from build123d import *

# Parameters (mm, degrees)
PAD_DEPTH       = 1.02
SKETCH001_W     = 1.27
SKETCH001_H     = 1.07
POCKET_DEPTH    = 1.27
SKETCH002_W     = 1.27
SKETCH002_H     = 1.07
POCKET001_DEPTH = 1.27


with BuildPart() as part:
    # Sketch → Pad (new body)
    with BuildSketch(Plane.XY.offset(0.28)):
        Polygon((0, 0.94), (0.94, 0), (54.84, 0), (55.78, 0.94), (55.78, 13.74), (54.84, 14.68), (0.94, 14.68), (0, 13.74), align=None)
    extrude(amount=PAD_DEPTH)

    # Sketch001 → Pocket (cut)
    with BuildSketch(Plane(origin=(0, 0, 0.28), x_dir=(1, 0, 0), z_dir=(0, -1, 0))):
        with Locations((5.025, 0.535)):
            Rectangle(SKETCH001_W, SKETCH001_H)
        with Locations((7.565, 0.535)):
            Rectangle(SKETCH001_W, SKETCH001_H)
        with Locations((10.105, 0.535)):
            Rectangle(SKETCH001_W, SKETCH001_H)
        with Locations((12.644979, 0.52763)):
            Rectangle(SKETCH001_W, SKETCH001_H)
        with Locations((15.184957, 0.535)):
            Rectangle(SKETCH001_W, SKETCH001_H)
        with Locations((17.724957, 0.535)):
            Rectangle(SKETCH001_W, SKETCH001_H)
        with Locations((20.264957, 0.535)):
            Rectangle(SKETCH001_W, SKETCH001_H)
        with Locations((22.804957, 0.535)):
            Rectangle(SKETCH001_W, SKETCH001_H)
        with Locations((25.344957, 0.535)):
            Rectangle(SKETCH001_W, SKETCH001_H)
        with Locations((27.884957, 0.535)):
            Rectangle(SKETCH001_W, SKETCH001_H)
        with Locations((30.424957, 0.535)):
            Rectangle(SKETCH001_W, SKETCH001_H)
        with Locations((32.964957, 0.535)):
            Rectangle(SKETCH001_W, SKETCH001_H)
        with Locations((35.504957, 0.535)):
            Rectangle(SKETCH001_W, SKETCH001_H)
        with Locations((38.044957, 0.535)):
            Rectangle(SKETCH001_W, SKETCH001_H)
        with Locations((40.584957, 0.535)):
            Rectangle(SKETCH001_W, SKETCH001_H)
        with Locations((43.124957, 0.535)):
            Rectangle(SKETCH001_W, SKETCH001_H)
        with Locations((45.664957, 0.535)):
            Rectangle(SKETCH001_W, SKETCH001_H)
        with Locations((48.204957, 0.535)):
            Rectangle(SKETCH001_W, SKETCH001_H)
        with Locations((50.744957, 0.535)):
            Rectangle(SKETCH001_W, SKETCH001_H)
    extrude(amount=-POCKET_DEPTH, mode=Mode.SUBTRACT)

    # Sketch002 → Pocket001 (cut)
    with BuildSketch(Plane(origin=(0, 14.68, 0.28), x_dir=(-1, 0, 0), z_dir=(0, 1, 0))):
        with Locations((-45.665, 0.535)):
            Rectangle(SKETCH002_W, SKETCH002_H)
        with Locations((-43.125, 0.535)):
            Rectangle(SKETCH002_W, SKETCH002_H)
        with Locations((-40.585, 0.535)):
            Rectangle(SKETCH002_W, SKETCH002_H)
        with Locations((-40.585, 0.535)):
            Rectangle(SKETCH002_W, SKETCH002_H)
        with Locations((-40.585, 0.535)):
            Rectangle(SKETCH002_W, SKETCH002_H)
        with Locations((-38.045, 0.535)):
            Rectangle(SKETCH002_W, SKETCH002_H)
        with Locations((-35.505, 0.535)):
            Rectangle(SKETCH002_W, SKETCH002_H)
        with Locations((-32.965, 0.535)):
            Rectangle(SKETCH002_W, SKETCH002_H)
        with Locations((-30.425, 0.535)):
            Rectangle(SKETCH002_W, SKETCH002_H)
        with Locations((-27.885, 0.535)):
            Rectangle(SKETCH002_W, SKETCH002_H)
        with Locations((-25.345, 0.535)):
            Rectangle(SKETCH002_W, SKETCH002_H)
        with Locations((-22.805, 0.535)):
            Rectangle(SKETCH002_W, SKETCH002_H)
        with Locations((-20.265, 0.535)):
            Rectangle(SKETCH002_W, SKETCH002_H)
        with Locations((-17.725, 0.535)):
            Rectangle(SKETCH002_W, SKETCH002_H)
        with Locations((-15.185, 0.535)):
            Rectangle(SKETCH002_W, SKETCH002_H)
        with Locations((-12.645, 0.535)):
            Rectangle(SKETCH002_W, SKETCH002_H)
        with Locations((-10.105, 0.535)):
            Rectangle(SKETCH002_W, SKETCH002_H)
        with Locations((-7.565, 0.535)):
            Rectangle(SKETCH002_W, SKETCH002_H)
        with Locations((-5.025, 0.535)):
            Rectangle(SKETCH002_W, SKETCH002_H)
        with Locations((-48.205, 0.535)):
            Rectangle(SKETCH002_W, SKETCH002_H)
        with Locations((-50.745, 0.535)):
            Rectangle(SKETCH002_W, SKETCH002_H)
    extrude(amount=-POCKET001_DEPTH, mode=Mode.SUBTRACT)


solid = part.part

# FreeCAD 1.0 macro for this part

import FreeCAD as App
import Part
import Sketcher
from FreeCAD import Vector


def add_polygon(sketch, points):
    """Adds a closed chain of lines whose ends are joined by coincident constraints."""
    first, n = sketch.GeometryCount, len(points)
    for a, b in zip(points, points[1:] + points[:1]):
        sketch.addGeometry(Part.LineSegment(App.Vector(*a, 0), App.Vector(*b, 0)), False)
    for i in range(n):
        sketch.addConstraint(Sketcher.Constraint("Coincident", first + i, 2, first + (i + 1) % n, 1))

doc = App.newDocument("Part")
params = doc.addObject("Spreadsheet::Sheet", "Params")
for row, (alias, value) in enumerate([
    ("sketch1_width", "53.9 mm"),
    ("sketch1_height", "12.8 mm"),
    ("pad1_length", "1.02 mm"),
    ("sketch2_width", "1.27 mm"),
    ("sketch2_height", "1.07 mm"),
    ("pocket1_length", "1.27 mm"),
    ("sketch3_width", "1.27 mm"),
    ("sketch3_height", "1.07 mm"),
    ("pocket2_length", "1.27 mm"),
], start=1):
    params.set(f"A{row}", alias)
    params.set(f"B{row}", "=" + value)
    params.setAlias(f"B{row}", alias)

body = doc.addObject("PartDesign::Body", "Body")

# Sketch on XY plane
sketch1 = body.newObject("Sketcher::SketchObject", "Sketch")
sketch1.AttachmentSupport = (doc.getObject("XY_Plane"), [""])
sketch1.MapMode = "FlatFace"
sketch1.AttachmentOffset = App.Placement(Vector(0, 0, 0.28), App.Rotation())
add_polygon(sketch1, [(0, 0.9), (0.9, 0), (54.8, 0), (55.8, 0.9), (55.8, 13.7), (54.8, 14.7), (0.9, 14.7), (0, 13.7)])  # lines 0-7
sketch1.addConstraint(Sketcher.Constraint("Horizontal", 1))
sketch1.addConstraint(Sketcher.Constraint("Vertical", 3))
sketch1.addConstraint(Sketcher.Constraint("Horizontal", 5))
sketch1.addConstraint(Sketcher.Constraint("Vertical", 7))
sketch1.addConstraint(Sketcher.Constraint("PointOnObject", 0, 2, -1))
sketch1.addConstraint(Sketcher.Constraint("PointOnObject", 6, 2, -2))
sketch1.addConstraint(Sketcher.Constraint("Perpendicular", 0, 2))
sketch1.addConstraint(Sketcher.Constraint("Perpendicular", 2, 4))
sketch1.addConstraint(Sketcher.Constraint("Perpendicular", 4, 6))
sketch1.addConstraint(Sketcher.Constraint("Horizontal", 3, 2, 6, 2))
sketch1.addConstraint(Sketcher.Constraint("Horizontal", 2, 2, 7, 2))
sketch1.addConstraint(Sketcher.Constraint("Vertical", 1, 2, 4, 2))
sketch1.addConstraint(Sketcher.Constraint("Vertical", 0, 2, 5, 2))
sketch1.addConstraint(Sketcher.Constraint("DistanceX", 1, 1, 1, 2, 53.9))
sketch1.addConstraint(Sketcher.Constraint("DistanceY", 3, 1, 3, 2, 12.8))
sketch1.addConstraint(Sketcher.Constraint("DistanceX", -1, 1, 0, 2, 0.94))
sketch1.setExpression("Constraints[21]", "Params.sketch1_width")
sketch1.setExpression("Constraints[22]", "Params.sketch1_height")
pad1 = body.newObject("PartDesign::Pad", "Pad")
pad1.Profile = sketch1
pad1.setExpression("Length", "Params.pad1_length")

# Sketch on XZ plane
sketch2 = body.newObject("Sketcher::SketchObject", "Sketch001")
sketch2.AttachmentSupport = (doc.getObject("XZ_Plane"), [""])
sketch2.MapMode = "FlatFace"
add_polygon(sketch2, [(4.4, 1.4), (4.4, 0.3), (5.7, 0.3), (5.7, 1.4)])  # lines 0-3
add_polygon(sketch2, [(6.9, 1.4), (6.9, 0.3), (8.2, 0.3), (8.2, 1.4)])  # lines 4-7
add_polygon(sketch2, [(9.5, 1.4), (9.5, 0.3), (10.7, 0.3), (10.7, 1.4)])  # lines 8-11
add_polygon(sketch2, [(12, 1.3), (12, 0.3), (13.3, 0.3), (13.3, 1.3)])  # lines 12-15
add_polygon(sketch2, [(14.5, 1.4), (14.5, 0.3), (15.8, 0.3), (15.8, 1.4)])  # lines 16-19
add_polygon(sketch2, [(17.1, 1.4), (17.1, 0.3), (18.4, 0.3), (18.4, 1.4)])  # lines 20-23
add_polygon(sketch2, [(19.6, 1.4), (19.6, 0.3), (20.9, 0.3), (20.9, 1.4)])  # lines 24-27
add_polygon(sketch2, [(22.2, 1.4), (22.2, 0.3), (23.4, 0.3), (23.4, 1.4)])  # lines 28-31
add_polygon(sketch2, [(24.7, 1.4), (24.7, 0.3), (26, 0.3), (26, 1.4)])  # lines 32-35
add_polygon(sketch2, [(27.2, 1.4), (27.2, 0.3), (28.5, 0.3), (28.5, 1.4)])  # lines 36-39
add_polygon(sketch2, [(29.8, 1.4), (29.8, 0.3), (31.1, 0.3), (31.1, 1.4)])  # lines 40-43
add_polygon(sketch2, [(32.3, 1.4), (32.3, 0.3), (33.6, 0.3), (33.6, 1.4)])  # lines 44-47
add_polygon(sketch2, [(34.9, 1.4), (34.9, 0.3), (36.1, 0.3), (36.1, 1.4)])  # lines 48-51
add_polygon(sketch2, [(37.4, 1.4), (37.4, 0.3), (38.7, 0.3), (38.7, 1.4)])  # lines 52-55
add_polygon(sketch2, [(39.9, 1.4), (39.9, 0.3), (41.2, 0.3), (41.2, 1.4)])  # lines 56-59
add_polygon(sketch2, [(42.5, 1.4), (42.5, 0.3), (43.8, 0.3), (43.8, 1.4)])  # lines 60-63
add_polygon(sketch2, [(45, 1.4), (45, 0.3), (46.3, 0.3), (46.3, 1.4)])  # lines 64-67
add_polygon(sketch2, [(47.6, 1.4), (47.6, 0.3), (48.8, 0.3), (48.8, 1.4)])  # lines 68-71
add_polygon(sketch2, [(50.1, 1.4), (50.1, 0.3), (51.4, 0.3), (51.4, 1.4)])  # lines 72-75
sketch2.addConstraint(Sketcher.Constraint("Vertical", 0))
sketch2.addConstraint(Sketcher.Constraint("Horizontal", 1))
sketch2.addConstraint(Sketcher.Constraint("Vertical", 2))
sketch2.addConstraint(Sketcher.Constraint("Horizontal", 3))
sketch2.addConstraint(Sketcher.Constraint("Vertical", 4))
sketch2.addConstraint(Sketcher.Constraint("Horizontal", 5))
sketch2.addConstraint(Sketcher.Constraint("Vertical", 6))
sketch2.addConstraint(Sketcher.Constraint("Horizontal", 7))
sketch2.addConstraint(Sketcher.Constraint("Vertical", 8))
sketch2.addConstraint(Sketcher.Constraint("Horizontal", 9))
sketch2.addConstraint(Sketcher.Constraint("Vertical", 10))
sketch2.addConstraint(Sketcher.Constraint("Horizontal", 11))
sketch2.addConstraint(Sketcher.Constraint("Vertical", 12))
sketch2.addConstraint(Sketcher.Constraint("Horizontal", 13))
sketch2.addConstraint(Sketcher.Constraint("Vertical", 14))
sketch2.addConstraint(Sketcher.Constraint("Horizontal", 15))
sketch2.addConstraint(Sketcher.Constraint("Vertical", 16))
sketch2.addConstraint(Sketcher.Constraint("Horizontal", 17))
sketch2.addConstraint(Sketcher.Constraint("Vertical", 18))
sketch2.addConstraint(Sketcher.Constraint("Horizontal", 19))
sketch2.addConstraint(Sketcher.Constraint("Vertical", 20))
sketch2.addConstraint(Sketcher.Constraint("Horizontal", 21))
sketch2.addConstraint(Sketcher.Constraint("Vertical", 22))
sketch2.addConstraint(Sketcher.Constraint("Horizontal", 23))
sketch2.addConstraint(Sketcher.Constraint("Vertical", 24))
sketch2.addConstraint(Sketcher.Constraint("Horizontal", 25))
sketch2.addConstraint(Sketcher.Constraint("Vertical", 26))
sketch2.addConstraint(Sketcher.Constraint("Horizontal", 27))
sketch2.addConstraint(Sketcher.Constraint("Vertical", 28))
sketch2.addConstraint(Sketcher.Constraint("Horizontal", 29))
sketch2.addConstraint(Sketcher.Constraint("Vertical", 30))
sketch2.addConstraint(Sketcher.Constraint("Horizontal", 31))
sketch2.addConstraint(Sketcher.Constraint("Vertical", 32))
sketch2.addConstraint(Sketcher.Constraint("Horizontal", 33))
sketch2.addConstraint(Sketcher.Constraint("Vertical", 34))
sketch2.addConstraint(Sketcher.Constraint("Horizontal", 35))
sketch2.addConstraint(Sketcher.Constraint("Vertical", 36))
sketch2.addConstraint(Sketcher.Constraint("Horizontal", 37))
sketch2.addConstraint(Sketcher.Constraint("Vertical", 38))
sketch2.addConstraint(Sketcher.Constraint("Horizontal", 39))
sketch2.addConstraint(Sketcher.Constraint("Vertical", 40))
sketch2.addConstraint(Sketcher.Constraint("Horizontal", 41))
sketch2.addConstraint(Sketcher.Constraint("Vertical", 42))
sketch2.addConstraint(Sketcher.Constraint("Horizontal", 43))
sketch2.addConstraint(Sketcher.Constraint("Vertical", 44))
sketch2.addConstraint(Sketcher.Constraint("Horizontal", 45))
sketch2.addConstraint(Sketcher.Constraint("Vertical", 46))
sketch2.addConstraint(Sketcher.Constraint("Horizontal", 47))
sketch2.addConstraint(Sketcher.Constraint("Vertical", 48))
sketch2.addConstraint(Sketcher.Constraint("Horizontal", 49))
sketch2.addConstraint(Sketcher.Constraint("Vertical", 50))
sketch2.addConstraint(Sketcher.Constraint("Horizontal", 51))
sketch2.addConstraint(Sketcher.Constraint("Vertical", 52))
sketch2.addConstraint(Sketcher.Constraint("Horizontal", 53))
sketch2.addConstraint(Sketcher.Constraint("Vertical", 54))
sketch2.addConstraint(Sketcher.Constraint("Horizontal", 55))
sketch2.addConstraint(Sketcher.Constraint("Vertical", 56))
sketch2.addConstraint(Sketcher.Constraint("Horizontal", 57))
sketch2.addConstraint(Sketcher.Constraint("Vertical", 58))
sketch2.addConstraint(Sketcher.Constraint("Horizontal", 59))
sketch2.addConstraint(Sketcher.Constraint("Vertical", 60))
sketch2.addConstraint(Sketcher.Constraint("Horizontal", 61))
sketch2.addConstraint(Sketcher.Constraint("Vertical", 62))
sketch2.addConstraint(Sketcher.Constraint("Horizontal", 63))
sketch2.addConstraint(Sketcher.Constraint("Vertical", 64))
sketch2.addConstraint(Sketcher.Constraint("Horizontal", 65))
sketch2.addConstraint(Sketcher.Constraint("Vertical", 66))
sketch2.addConstraint(Sketcher.Constraint("Horizontal", 67))
sketch2.addConstraint(Sketcher.Constraint("Vertical", 68))
sketch2.addConstraint(Sketcher.Constraint("Horizontal", 69))
sketch2.addConstraint(Sketcher.Constraint("Vertical", 70))
sketch2.addConstraint(Sketcher.Constraint("Horizontal", 71))
sketch2.addConstraint(Sketcher.Constraint("Vertical", 72))
sketch2.addConstraint(Sketcher.Constraint("Horizontal", 73))
sketch2.addConstraint(Sketcher.Constraint("Vertical", 74))
sketch2.addConstraint(Sketcher.Constraint("Horizontal", 75))
sketch2.addConstraint(Sketcher.Constraint("Horizontal", 1, 2, 4, 2))
sketch2.addConstraint(Sketcher.Constraint("Horizontal", 3, 2, 6, 2))
sketch2.addConstraint(Sketcher.Constraint("Horizontal", 5, 2, 8, 2))
sketch2.addConstraint(Sketcher.Constraint("Horizontal", 7, 2, 10, 2))
sketch2.addConstraint(Sketcher.Constraint("Horizontal", 9, 2, 16, 2))
sketch2.addConstraint(Sketcher.Constraint("Horizontal", 11, 2, 18, 2))
sketch2.addConstraint(Sketcher.Constraint("Horizontal", 17, 2, 20, 2))
sketch2.addConstraint(Sketcher.Constraint("Horizontal", 19, 2, 22, 2))
sketch2.addConstraint(Sketcher.Constraint("Horizontal", 21, 2, 24, 2))
sketch2.addConstraint(Sketcher.Constraint("Horizontal", 23, 2, 26, 2))
sketch2.addConstraint(Sketcher.Constraint("Horizontal", 25, 2, 28, 2))
sketch2.addConstraint(Sketcher.Constraint("Horizontal", 27, 2, 30, 2))
sketch2.addConstraint(Sketcher.Constraint("Horizontal", 29, 2, 32, 2))
sketch2.addConstraint(Sketcher.Constraint("Horizontal", 31, 2, 34, 2))
sketch2.addConstraint(Sketcher.Constraint("Horizontal", 33, 2, 36, 2))
sketch2.addConstraint(Sketcher.Constraint("Horizontal", 35, 2, 38, 2))
sketch2.addConstraint(Sketcher.Constraint("Horizontal", 37, 2, 40, 2))
sketch2.addConstraint(Sketcher.Constraint("Horizontal", 39, 2, 42, 2))
sketch2.addConstraint(Sketcher.Constraint("Horizontal", 41, 2, 44, 2))
sketch2.addConstraint(Sketcher.Constraint("Horizontal", 43, 2, 46, 2))
sketch2.addConstraint(Sketcher.Constraint("Horizontal", 45, 2, 48, 2))
sketch2.addConstraint(Sketcher.Constraint("Horizontal", 47, 2, 50, 2))
sketch2.addConstraint(Sketcher.Constraint("Horizontal", 49, 2, 52, 2))
sketch2.addConstraint(Sketcher.Constraint("Horizontal", 51, 2, 54, 2))
sketch2.addConstraint(Sketcher.Constraint("Horizontal", 53, 2, 56, 2))
sketch2.addConstraint(Sketcher.Constraint("Horizontal", 55, 2, 58, 2))
sketch2.addConstraint(Sketcher.Constraint("Horizontal", 57, 2, 60, 2))
sketch2.addConstraint(Sketcher.Constraint("Horizontal", 59, 2, 62, 2))
sketch2.addConstraint(Sketcher.Constraint("Horizontal", 61, 2, 64, 2))
sketch2.addConstraint(Sketcher.Constraint("Horizontal", 63, 2, 66, 2))
sketch2.addConstraint(Sketcher.Constraint("Horizontal", 65, 2, 68, 2))
sketch2.addConstraint(Sketcher.Constraint("Horizontal", 67, 2, 70, 2))
sketch2.addConstraint(Sketcher.Constraint("Horizontal", 69, 2, 72, 2))
sketch2.addConstraint(Sketcher.Constraint("Horizontal", 71, 2, 74, 2))
sketch2.addConstraint(Sketcher.Constraint("Equal", 3, 5))
sketch2.addConstraint(Sketcher.Constraint("Equal", 7, 9))
sketch2.addConstraint(Sketcher.Constraint("Equal", 11, 13))
sketch2.addConstraint(Sketcher.Constraint("Equal", 15, 17))
sketch2.addConstraint(Sketcher.Constraint("Equal", 19, 21))
sketch2.addConstraint(Sketcher.Constraint("Equal", 23, 25))
sketch2.addConstraint(Sketcher.Constraint("Equal", 27, 29))
sketch2.addConstraint(Sketcher.Constraint("Equal", 31, 33))
sketch2.addConstraint(Sketcher.Constraint("Equal", 35, 37))
sketch2.addConstraint(Sketcher.Constraint("Equal", 39, 41))
sketch2.addConstraint(Sketcher.Constraint("Equal", 43, 45))
sketch2.addConstraint(Sketcher.Constraint("Equal", 47, 49))
sketch2.addConstraint(Sketcher.Constraint("Equal", 51, 53))
sketch2.addConstraint(Sketcher.Constraint("Equal", 55, 57))
sketch2.addConstraint(Sketcher.Constraint("Equal", 59, 61))
sketch2.addConstraint(Sketcher.Constraint("Equal", 63, 65))
sketch2.addConstraint(Sketcher.Constraint("Equal", 67, 69))
sketch2.addConstraint(Sketcher.Constraint("Equal", 71, 73))
sketch2.addConstraint(Sketcher.Constraint("Equal", 10, 12))
sketch2.addConstraint(Sketcher.Constraint("DistanceX", 1, 1, 1, 2, 1.27))
sketch2.addConstraint(Sketcher.Constraint("DistanceY", 0, 2, 0, 1, 1.07))
sketch2.addConstraint(Sketcher.Constraint("DistanceX", -1, 1, 5, 2, 8.2))
sketch2.addConstraint(Sketcher.Constraint("DistanceX", -1, 1, 0, 2, 4.39))
sketch2.addConstraint(Sketcher.Constraint("DistanceY", -1, 1, 0, 2, 0.28))
sketch2.addConstraint(Sketcher.Constraint("DistanceX", -1, 1, 8, 2, 9.47))
sketch2.addConstraint(Sketcher.Constraint("DistanceX", -1, 1, 12, 2, 12.009979))
sketch2.addConstraint(Sketcher.Constraint("DistanceY", -1, 1, 12, 2, 0.27263))
sketch2.addConstraint(Sketcher.Constraint("DistanceX", -1, 1, 16, 2, 14.549957))
sketch2.addConstraint(Sketcher.Constraint("DistanceX", -1, 1, 20, 2, 17.089957))
sketch2.addConstraint(Sketcher.Constraint("DistanceX", -1, 1, 24, 2, 19.629957))
sketch2.addConstraint(Sketcher.Constraint("DistanceX", -1, 1, 28, 2, 22.169957))
sketch2.addConstraint(Sketcher.Constraint("DistanceX", -1, 1, 32, 2, 24.709957))
sketch2.addConstraint(Sketcher.Constraint("DistanceX", -1, 1, 36, 2, 27.249957))
sketch2.addConstraint(Sketcher.Constraint("DistanceX", -1, 1, 40, 2, 29.789957))
sketch2.addConstraint(Sketcher.Constraint("DistanceX", -1, 1, 44, 2, 32.329957))
sketch2.addConstraint(Sketcher.Constraint("DistanceX", -1, 1, 48, 2, 34.869957))
sketch2.addConstraint(Sketcher.Constraint("DistanceX", -1, 1, 52, 2, 37.409957))
sketch2.addConstraint(Sketcher.Constraint("DistanceX", -1, 1, 56, 2, 39.949957))
sketch2.addConstraint(Sketcher.Constraint("DistanceX", -1, 1, 60, 2, 42.489957))
sketch2.addConstraint(Sketcher.Constraint("DistanceX", -1, 1, 64, 2, 45.029957))
sketch2.addConstraint(Sketcher.Constraint("DistanceX", -1, 1, 68, 2, 47.569957))
sketch2.addConstraint(Sketcher.Constraint("DistanceX", -1, 1, 72, 2, 50.109957))
sketch2.setExpression("Constraints[205]", "Params.sketch2_width")
sketch2.setExpression("Constraints[206]", "Params.sketch2_height")
pocket1 = body.newObject("PartDesign::Pocket", "Pocket")
pocket1.Profile = sketch2
pocket1.setExpression("Length", "Params.pocket1_length")

# Sketch on XZ plane
sketch3 = body.newObject("Sketcher::SketchObject", "Sketch002")
sketch3.AttachmentSupport = (doc.getObject("XZ_Plane"), [""])
sketch3.MapMode = "FlatFace"
sketch3.AttachmentOffset = App.Placement(Vector(0, 0, -14.68), App.Rotation())
add_polygon(sketch3, [(46.3, 1.4), (46.3, 0.3), (45, 0.3), (45, 1.4)])  # lines 0-3
add_polygon(sketch3, [(43.8, 1.4), (43.8, 0.3), (42.5, 0.3), (42.5, 1.4)])  # lines 4-7
add_polygon(sketch3, [(41.2, 1.4), (41.2, 0.3), (40, 0.3), (40, 1.4)])  # lines 8-11
add_polygon(sketch3, [(38.7, 1.4), (38.7, 0.3), (37.4, 0.3), (37.4, 1.4)])  # lines 12-15
add_polygon(sketch3, [(36.1, 1.4), (36.1, 0.3), (34.9, 0.3), (34.9, 1.4)])  # lines 16-19
add_polygon(sketch3, [(33.6, 1.4), (33.6, 0.3), (32.3, 0.3), (32.3, 1.4)])  # lines 20-23
add_polygon(sketch3, [(31.1, 1.4), (31.1, 0.3), (29.8, 0.3), (29.8, 1.4)])  # lines 24-27
add_polygon(sketch3, [(28.5, 1.4), (28.5, 0.3), (27.2, 0.3), (27.2, 1.4)])  # lines 28-31
add_polygon(sketch3, [(26, 1.4), (26, 0.3), (24.7, 0.3), (24.7, 1.4)])  # lines 32-35
add_polygon(sketch3, [(23.4, 1.4), (23.4, 0.3), (22.2, 0.3), (22.2, 1.4)])  # lines 36-39
add_polygon(sketch3, [(20.9, 1.4), (20.9, 0.3), (19.6, 0.3), (19.6, 1.4)])  # lines 40-43
add_polygon(sketch3, [(18.4, 1.4), (18.4, 0.3), (17.1, 0.3), (17.1, 1.4)])  # lines 44-47
add_polygon(sketch3, [(15.8, 1.4), (15.8, 0.3), (14.6, 0.3), (14.6, 1.4)])  # lines 48-51
add_polygon(sketch3, [(13.3, 1.4), (13.3, 0.3), (12, 0.3), (12, 1.4)])  # lines 52-55
add_polygon(sketch3, [(10.7, 1.4), (10.7, 0.3), (9.5, 0.3), (9.5, 1.4)])  # lines 56-59
add_polygon(sketch3, [(8.2, 1.4), (8.2, 0.3), (6.9, 0.3), (6.9, 1.4)])  # lines 60-63
add_polygon(sketch3, [(5.7, 1.4), (5.7, 0.3), (4.4, 0.3), (4.4, 1.4)])  # lines 64-67
add_polygon(sketch3, [(48.8, 1.4), (48.8, 0.3), (47.6, 0.3), (47.6, 1.4)])  # lines 68-71
add_polygon(sketch3, [(51.4, 1.4), (51.4, 0.3), (50.1, 0.3), (50.1, 1.4)])  # lines 72-75
sketch3.addConstraint(Sketcher.Constraint("Vertical", 0))
sketch3.addConstraint(Sketcher.Constraint("Horizontal", 1))
sketch3.addConstraint(Sketcher.Constraint("Vertical", 2))
sketch3.addConstraint(Sketcher.Constraint("Horizontal", 3))
sketch3.addConstraint(Sketcher.Constraint("Vertical", 4))
sketch3.addConstraint(Sketcher.Constraint("Horizontal", 5))
sketch3.addConstraint(Sketcher.Constraint("Vertical", 6))
sketch3.addConstraint(Sketcher.Constraint("Horizontal", 7))
sketch3.addConstraint(Sketcher.Constraint("Vertical", 8))
sketch3.addConstraint(Sketcher.Constraint("Horizontal", 9))
sketch3.addConstraint(Sketcher.Constraint("Vertical", 10))
sketch3.addConstraint(Sketcher.Constraint("Horizontal", 11))
sketch3.addConstraint(Sketcher.Constraint("Vertical", 12))
sketch3.addConstraint(Sketcher.Constraint("Horizontal", 13))
sketch3.addConstraint(Sketcher.Constraint("Vertical", 14))
sketch3.addConstraint(Sketcher.Constraint("Horizontal", 15))
sketch3.addConstraint(Sketcher.Constraint("Vertical", 16))
sketch3.addConstraint(Sketcher.Constraint("Horizontal", 17))
sketch3.addConstraint(Sketcher.Constraint("Vertical", 18))
sketch3.addConstraint(Sketcher.Constraint("Horizontal", 19))
sketch3.addConstraint(Sketcher.Constraint("Vertical", 20))
sketch3.addConstraint(Sketcher.Constraint("Horizontal", 21))
sketch3.addConstraint(Sketcher.Constraint("Vertical", 22))
sketch3.addConstraint(Sketcher.Constraint("Horizontal", 23))
sketch3.addConstraint(Sketcher.Constraint("Vertical", 24))
sketch3.addConstraint(Sketcher.Constraint("Horizontal", 25))
sketch3.addConstraint(Sketcher.Constraint("Vertical", 26))
sketch3.addConstraint(Sketcher.Constraint("Horizontal", 27))
sketch3.addConstraint(Sketcher.Constraint("Vertical", 28))
sketch3.addConstraint(Sketcher.Constraint("Horizontal", 29))
sketch3.addConstraint(Sketcher.Constraint("Vertical", 30))
sketch3.addConstraint(Sketcher.Constraint("Horizontal", 31))
sketch3.addConstraint(Sketcher.Constraint("Vertical", 32))
sketch3.addConstraint(Sketcher.Constraint("Horizontal", 33))
sketch3.addConstraint(Sketcher.Constraint("Vertical", 34))
sketch3.addConstraint(Sketcher.Constraint("Horizontal", 35))
sketch3.addConstraint(Sketcher.Constraint("Vertical", 36))
sketch3.addConstraint(Sketcher.Constraint("Horizontal", 37))
sketch3.addConstraint(Sketcher.Constraint("Vertical", 38))
sketch3.addConstraint(Sketcher.Constraint("Horizontal", 39))
sketch3.addConstraint(Sketcher.Constraint("Vertical", 40))
sketch3.addConstraint(Sketcher.Constraint("Horizontal", 41))
sketch3.addConstraint(Sketcher.Constraint("Vertical", 42))
sketch3.addConstraint(Sketcher.Constraint("Horizontal", 43))
sketch3.addConstraint(Sketcher.Constraint("Vertical", 44))
sketch3.addConstraint(Sketcher.Constraint("Horizontal", 45))
sketch3.addConstraint(Sketcher.Constraint("Vertical", 46))
sketch3.addConstraint(Sketcher.Constraint("Horizontal", 47))
sketch3.addConstraint(Sketcher.Constraint("Vertical", 48))
sketch3.addConstraint(Sketcher.Constraint("Horizontal", 49))
sketch3.addConstraint(Sketcher.Constraint("Vertical", 50))
sketch3.addConstraint(Sketcher.Constraint("Horizontal", 51))
sketch3.addConstraint(Sketcher.Constraint("Vertical", 52))
sketch3.addConstraint(Sketcher.Constraint("Horizontal", 53))
sketch3.addConstraint(Sketcher.Constraint("Vertical", 54))
sketch3.addConstraint(Sketcher.Constraint("Horizontal", 55))
sketch3.addConstraint(Sketcher.Constraint("Vertical", 56))
sketch3.addConstraint(Sketcher.Constraint("Horizontal", 57))
sketch3.addConstraint(Sketcher.Constraint("Vertical", 58))
sketch3.addConstraint(Sketcher.Constraint("Horizontal", 59))
sketch3.addConstraint(Sketcher.Constraint("Vertical", 60))
sketch3.addConstraint(Sketcher.Constraint("Horizontal", 61))
sketch3.addConstraint(Sketcher.Constraint("Vertical", 62))
sketch3.addConstraint(Sketcher.Constraint("Horizontal", 63))
sketch3.addConstraint(Sketcher.Constraint("Vertical", 64))
sketch3.addConstraint(Sketcher.Constraint("Horizontal", 65))
sketch3.addConstraint(Sketcher.Constraint("Vertical", 66))
sketch3.addConstraint(Sketcher.Constraint("Horizontal", 67))
sketch3.addConstraint(Sketcher.Constraint("Vertical", 68))
sketch3.addConstraint(Sketcher.Constraint("Horizontal", 69))
sketch3.addConstraint(Sketcher.Constraint("Vertical", 70))
sketch3.addConstraint(Sketcher.Constraint("Horizontal", 71))
sketch3.addConstraint(Sketcher.Constraint("Vertical", 72))
sketch3.addConstraint(Sketcher.Constraint("Horizontal", 73))
sketch3.addConstraint(Sketcher.Constraint("Vertical", 74))
sketch3.addConstraint(Sketcher.Constraint("Horizontal", 75))
sketch3.addConstraint(Sketcher.Constraint("Horizontal", 1, 2, 4, 2))
sketch3.addConstraint(Sketcher.Constraint("Horizontal", 3, 2, 6, 2))
sketch3.addConstraint(Sketcher.Constraint("Horizontal", 5, 2, 8, 2))
sketch3.addConstraint(Sketcher.Constraint("Horizontal", 7, 2, 10, 2))
sketch3.addConstraint(Sketcher.Constraint("Horizontal", 9, 2, 12, 2))
sketch3.addConstraint(Sketcher.Constraint("Horizontal", 11, 2, 14, 2))
sketch3.addConstraint(Sketcher.Constraint("Horizontal", 13, 2, 16, 2))
sketch3.addConstraint(Sketcher.Constraint("Horizontal", 15, 2, 18, 2))
sketch3.addConstraint(Sketcher.Constraint("Horizontal", 17, 2, 20, 2))
sketch3.addConstraint(Sketcher.Constraint("Horizontal", 19, 2, 22, 2))
sketch3.addConstraint(Sketcher.Constraint("Horizontal", 21, 2, 24, 2))
sketch3.addConstraint(Sketcher.Constraint("Horizontal", 23, 2, 26, 2))
sketch3.addConstraint(Sketcher.Constraint("Horizontal", 25, 2, 28, 2))
sketch3.addConstraint(Sketcher.Constraint("Horizontal", 27, 2, 30, 2))
sketch3.addConstraint(Sketcher.Constraint("Horizontal", 29, 2, 32, 2))
sketch3.addConstraint(Sketcher.Constraint("Horizontal", 31, 2, 34, 2))
sketch3.addConstraint(Sketcher.Constraint("Horizontal", 33, 2, 36, 2))
sketch3.addConstraint(Sketcher.Constraint("Horizontal", 35, 2, 38, 2))
sketch3.addConstraint(Sketcher.Constraint("Horizontal", 37, 2, 40, 2))
sketch3.addConstraint(Sketcher.Constraint("Horizontal", 39, 2, 42, 2))
sketch3.addConstraint(Sketcher.Constraint("Horizontal", 41, 2, 44, 2))
sketch3.addConstraint(Sketcher.Constraint("Horizontal", 43, 2, 46, 2))
sketch3.addConstraint(Sketcher.Constraint("Horizontal", 45, 2, 48, 2))
sketch3.addConstraint(Sketcher.Constraint("Horizontal", 47, 2, 50, 2))
sketch3.addConstraint(Sketcher.Constraint("Horizontal", 49, 2, 52, 2))
sketch3.addConstraint(Sketcher.Constraint("Horizontal", 51, 2, 54, 2))
sketch3.addConstraint(Sketcher.Constraint("Horizontal", 53, 2, 56, 2))
sketch3.addConstraint(Sketcher.Constraint("Horizontal", 55, 2, 58, 2))
sketch3.addConstraint(Sketcher.Constraint("Horizontal", 57, 2, 60, 2))
sketch3.addConstraint(Sketcher.Constraint("Horizontal", 59, 2, 62, 2))
sketch3.addConstraint(Sketcher.Constraint("Horizontal", 61, 2, 64, 2))
sketch3.addConstraint(Sketcher.Constraint("Horizontal", 63, 2, 66, 2))
sketch3.addConstraint(Sketcher.Constraint("Horizontal", 65, 2, 68, 2))
sketch3.addConstraint(Sketcher.Constraint("Horizontal", 67, 2, 70, 2))
sketch3.addConstraint(Sketcher.Constraint("Horizontal", 69, 2, 72, 2))
sketch3.addConstraint(Sketcher.Constraint("Horizontal", 71, 2, 74, 2))
sketch3.addConstraint(Sketcher.Constraint("Equal", 3, 5))
sketch3.addConstraint(Sketcher.Constraint("Equal", 7, 9))
sketch3.addConstraint(Sketcher.Constraint("Equal", 11, 13))
sketch3.addConstraint(Sketcher.Constraint("Equal", 15, 17))
sketch3.addConstraint(Sketcher.Constraint("Equal", 19, 21))
sketch3.addConstraint(Sketcher.Constraint("Equal", 23, 25))
sketch3.addConstraint(Sketcher.Constraint("Equal", 27, 29))
sketch3.addConstraint(Sketcher.Constraint("Equal", 31, 33))
sketch3.addConstraint(Sketcher.Constraint("Equal", 35, 37))
sketch3.addConstraint(Sketcher.Constraint("Equal", 39, 41))
sketch3.addConstraint(Sketcher.Constraint("Equal", 43, 45))
sketch3.addConstraint(Sketcher.Constraint("Equal", 47, 49))
sketch3.addConstraint(Sketcher.Constraint("Equal", 51, 53))
sketch3.addConstraint(Sketcher.Constraint("Equal", 55, 57))
sketch3.addConstraint(Sketcher.Constraint("Equal", 59, 61))
sketch3.addConstraint(Sketcher.Constraint("Equal", 63, 65))
sketch3.addConstraint(Sketcher.Constraint("Equal", 67, 69))
sketch3.addConstraint(Sketcher.Constraint("Equal", 71, 73))
sketch3.addConstraint(Sketcher.Constraint("DistanceX", 1, 2, 1, 1, 1.27))
sketch3.addConstraint(Sketcher.Constraint("DistanceY", 0, 2, 0, 1, 1.07))
sketch3.addConstraint(Sketcher.Constraint("DistanceX", -1, 1, 0, 2, 46.3))
sketch3.addConstraint(Sketcher.Constraint("DistanceX", -1, 1, 20, 2, 33.6))
sketch3.addConstraint(Sketcher.Constraint("DistanceX", -1, 1, 40, 2, 20.9))
sketch3.addConstraint(Sketcher.Constraint("DistanceX", -1, 1, 60, 2, 8.2))
sketch3.addConstraint(Sketcher.Constraint("DistanceY", -1, 1, 0, 2, 0.28))
sketch3.addConstraint(Sketcher.Constraint("DistanceX", -1, 1, 4, 2, 43.76))
sketch3.addConstraint(Sketcher.Constraint("DistanceX", -1, 1, 8, 2, 41.22))
sketch3.addConstraint(Sketcher.Constraint("DistanceX", -1, 1, 12, 2, 38.68))
sketch3.addConstraint(Sketcher.Constraint("DistanceX", -1, 1, 16, 2, 36.14))
sketch3.addConstraint(Sketcher.Constraint("DistanceX", -1, 1, 24, 2, 31.06))
sketch3.addConstraint(Sketcher.Constraint("DistanceX", -1, 1, 28, 2, 28.52))
sketch3.addConstraint(Sketcher.Constraint("DistanceX", -1, 1, 32, 2, 25.98))
sketch3.addConstraint(Sketcher.Constraint("DistanceX", -1, 1, 36, 2, 23.44))
sketch3.addConstraint(Sketcher.Constraint("DistanceX", -1, 1, 44, 2, 18.36))
sketch3.addConstraint(Sketcher.Constraint("DistanceX", -1, 1, 48, 2, 15.82))
sketch3.addConstraint(Sketcher.Constraint("DistanceX", -1, 1, 52, 2, 13.28))
sketch3.addConstraint(Sketcher.Constraint("DistanceX", -1, 1, 56, 2, 10.74))
sketch3.addConstraint(Sketcher.Constraint("DistanceX", -1, 1, 64, 2, 5.66))
sketch3.addConstraint(Sketcher.Constraint("DistanceX", -1, 1, 68, 2, 48.84))
sketch3.addConstraint(Sketcher.Constraint("DistanceX", -1, 1, 72, 2, 51.38))
sketch3.setExpression("Constraints[206]", "Params.sketch3_width")
sketch3.setExpression("Constraints[207]", "Params.sketch3_height")
pocket2 = body.newObject("PartDesign::Pocket", "Pocket001")
pocket2.Profile = sketch3
pocket2.setExpression("Length", "Params.pocket2_length")
pocket2.Reversed = True

doc.recompute()
